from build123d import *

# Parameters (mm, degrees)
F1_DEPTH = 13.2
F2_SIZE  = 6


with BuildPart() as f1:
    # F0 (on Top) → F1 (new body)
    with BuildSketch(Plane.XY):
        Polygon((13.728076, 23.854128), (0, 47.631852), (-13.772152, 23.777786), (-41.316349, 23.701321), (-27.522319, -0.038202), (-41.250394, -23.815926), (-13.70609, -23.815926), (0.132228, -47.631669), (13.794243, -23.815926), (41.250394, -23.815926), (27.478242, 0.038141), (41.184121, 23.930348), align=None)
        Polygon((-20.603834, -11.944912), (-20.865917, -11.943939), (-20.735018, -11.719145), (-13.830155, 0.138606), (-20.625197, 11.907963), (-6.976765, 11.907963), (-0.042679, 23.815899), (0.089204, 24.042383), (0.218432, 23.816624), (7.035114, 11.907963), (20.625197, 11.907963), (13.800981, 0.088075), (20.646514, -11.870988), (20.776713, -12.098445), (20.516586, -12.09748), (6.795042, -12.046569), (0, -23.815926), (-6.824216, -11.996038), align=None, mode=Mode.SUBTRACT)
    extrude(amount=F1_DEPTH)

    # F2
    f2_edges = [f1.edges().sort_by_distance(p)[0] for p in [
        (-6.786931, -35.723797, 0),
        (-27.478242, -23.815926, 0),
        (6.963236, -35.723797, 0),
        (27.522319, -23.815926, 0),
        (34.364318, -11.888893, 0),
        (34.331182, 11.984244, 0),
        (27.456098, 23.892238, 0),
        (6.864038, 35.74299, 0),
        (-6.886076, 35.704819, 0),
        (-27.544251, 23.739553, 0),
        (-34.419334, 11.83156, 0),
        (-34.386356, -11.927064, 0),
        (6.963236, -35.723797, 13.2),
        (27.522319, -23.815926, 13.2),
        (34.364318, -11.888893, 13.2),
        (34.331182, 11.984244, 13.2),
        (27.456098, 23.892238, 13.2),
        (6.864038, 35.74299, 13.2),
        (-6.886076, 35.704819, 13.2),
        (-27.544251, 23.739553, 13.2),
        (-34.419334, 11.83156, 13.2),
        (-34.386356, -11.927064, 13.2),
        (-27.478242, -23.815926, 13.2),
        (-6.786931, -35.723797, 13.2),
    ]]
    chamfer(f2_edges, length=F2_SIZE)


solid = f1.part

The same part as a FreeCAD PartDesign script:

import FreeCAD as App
import Part
import Sketcher
Q = App.Units.Quantity


def edges_at(feature, points):
    """Names of the edges that pass closest to the given points."""
    edges = feature.Shape.Edges
    near = lambda p: min(range(len(edges)), key=lambda i: edges[i].distToShape(Part.Vertex(*p))[0])
    return sorted({f"Edge{near(p) + 1}" for p in points})


def add_polygon(sketch, points):
    """Adds a closed chain of lines whose ends are joined by coincident constraints."""
    first, n = sketch.GeometryCount, len(points)
    for a, b in zip(points, points[1:] + points[:1]):
        sketch.addGeometry(Part.LineSegment(App.Vector(*a, 0), App.Vector(*b, 0)), False)
    for i in range(n):
        sketch.addConstraint(Sketcher.Constraint("Coincident", first + i, 2, first + (i + 1) % n, 1))

doc = App.newDocument("Part")
body = doc.addObject("PartDesign::Body", "Body")

# Sketch on XY plane
sketch1 = body.newObject("Sketcher::SketchObject", "Sketch")
sketch1.AttachmentSupport = (doc.getObject("XY_Plane"), [""])
sketch1.MapMode = "FlatFace"
add_polygon(sketch1, [(13.728076, 23.854128), (0, 47.631852), (-13.772152, 23.777786), (-41.316349, 23.701321), (-27.522319, -0.038202), (-41.250394, -23.815926), (-13.70609, -23.815926), (0.132228, -47.631669), (13.794243, -23.815926), (41.250394, -23.815926), (27.478242, 0.038141), (41.184121, 23.930348)])  # lines 0-11
add_polygon(sketch1, [(-6.824216, -11.996038), (-20.603834, -11.944912), (-20.865917, -11.943939), (-20.735018, -11.719145), (-13.830155, 0.138606), (-20.625197, 11.907963), (-6.976765, 11.907963), (-0.042679, 23.815899), (0.089204, 24.042383), (0.218432, 23.816624), (7.035114, 11.907963), (20.625197, 11.907963), (13.800981, 0.088075), (20.646514, -11.870988), (20.776713, -12.098445), (20.516586, -12.09748), (6.795042, -12.046569), (0, -23.815926)])  # lines 12-29
sketch1.addConstraint(Sketcher.Constraint("Horizontal", 5))
sketch1.addConstraint(Sketcher.Constraint("Horizontal", 8))
sketch1.addConstraint(Sketcher.Constraint("Horizontal", 17))
sketch1.addConstraint(Sketcher.Constraint("Horizontal", 22))
sketch1.addConstraint(Sketcher.Constraint("PointOnObject", 0, 2, -2))
sketch1.addConstraint(Sketcher.Constraint("PointOnObject", 28, 2, -2))
sketch1.addConstraint(Sketcher.Constraint("DistanceX", 7, 2, 9, 2, Q("13.683999 mm")))
sketch1.addConstraint(Sketcher.Constraint("DistanceY", 7, 2, 23, 2, Q("23.904001 mm")))
sketch1.addConstraint(Sketcher.Constraint("DistanceX", 8, 1, 8, 2, Q("27.456151 mm")))
sketch1.addConstraint(Sketcher.Constraint("DistanceY", -1, 1, 18, 2, Q("23.815899 mm")))
sketch1.addConstraint(Sketcher.Constraint("DistanceX", 13, 2, 14, 2, Q("0.130899 mm")))
sketch1.addConstraint(Sketcher.Constraint("DistanceX", 3, 2, 14, 2, Q("6.787301 mm")))
sketch1.addConstraint(Sketcher.Constraint("DistanceX", 24, 2, 25, 2, Q("0.130199 mm")))
sketch1.addConstraint(Sketcher.Constraint("DistanceX", 27, 2, 7, 2, Q("6.999201 mm")))
sketch1.addConstraint(Sketcher.Constraint("Distance", 0, Q("27.456151 mm")))
sketch1.addConstraint(Sketcher.Constraint("Distance", 3, Q("27.456151 mm")))
sketch1.addConstraint(Sketcher.Constraint("Distance", 4, Q("27.456151 mm")))
sketch1.addConstraint(Sketcher.Constraint("Distance", 7, Q("27.456152 mm")))
sketch1.addConstraint(Sketcher.Constraint("Distance", 11, Q("27.456151 mm")))
sketch1.addConstraint(Sketcher.Constraint("Distance", 14, Q("0.260129 mm")))
sketch1.addConstraint(Sketcher.Constraint("Distance", 15, Q("13.72164 mm")))
sketch1.addConstraint(Sketcher.Constraint("Distance", 20, Q("0.260129 mm")))
sketch1.addConstraint(Sketcher.Constraint("Distance", 21, Q("13.721638 mm")))
sketch1.addConstraint(Sketcher.Constraint("Distance", 23, Q("13.648431 mm")))
sketch1.addConstraint(Sketcher.Constraint("Distance", 26, Q("0.260129 mm")))
sketch1.addConstraint(Sketcher.Constraint("Distance", 27, Q("13.721638 mm")))
sketch1.addConstraint(Sketcher.Constraint("Distance", 29, Q("13.648431 mm")))
sketch1.addConstraint(Sketcher.Constraint("DistanceX", 5, 1, 5, 2, Q("27.544304 mm")))
sketch1.addConstraint(Sketcher.Constraint("DistanceX", 17, 1, 17, 2, Q("13.648432 mm")))
sketch1.addConstraint(Sketcher.Constraint("DistanceX", 22, 1, 22, 2, Q("13.590083 mm")))
sketch1.addConstraint(Sketcher.Constraint("DistanceX", 2, 2, -1, 1, Q("41.316349 mm")))
sketch1.addConstraint(Sketcher.Constraint("DistanceY", -1, 1, 2, 2, Q("23.701321 mm")))
sketch1.addConstraint(Sketcher.Constraint("DistanceX", 3, 2, -1, 1, Q("27.522319 mm")))
sketch1.addConstraint(Sketcher.Constraint("DistanceX", 5, 2, -1, 1, Q("13.70609 mm")))
sketch1.addConstraint(Sketcher.Constraint("DistanceX", -1, 1, 6, 2, Q("0.132228 mm")))
sketch1.addConstraint(Sketcher.Constraint("DistanceY", 6, 2, -1, 1, Q("47.631669 mm")))
sketch1.addConstraint(Sketcher.Constraint("DistanceY", -1, 1, 9, 2, Q("0.038141 mm")))
sketch1.addConstraint(Sketcher.Constraint("DistanceX", -1, 1, 10, 2, Q("41.184121 mm")))
sketch1.addConstraint(Sketcher.Constraint("DistanceY", 13, 2, -1, 1, Q("11.943939 mm")))
sketch1.addConstraint(Sketcher.Constraint("DistanceX", 18, 2, -1, 1, Q("0.042679 mm")))
sketch1.addConstraint(Sketcher.Constraint("DistanceX", -1, 1, 20, 2, Q("0.218432 mm")))
sketch1.addConstraint(Sketcher.Constraint("DistanceX", -1, 1, 23, 2, Q("13.800981 mm")))
sketch1.addConstraint(Sketcher.Constraint("DistanceY", 26, 2, -1, 1, Q("12.09748 mm")))
sketch1.addConstraint(Sketcher.Constraint("DistanceX", -1, 1, 27, 2, Q("6.795042 mm")))
sketch1.addConstraint(Sketcher.Constraint("DistanceY", 27, 2, -1, 1, Q("12.046569 mm")))
sketch1.addConstraint(Sketcher.Constraint("DistanceY", 2, 2, 0, 2, Q("23.930531 mm")))
sketch1.addConstraint(Sketcher.Constraint("DistanceY", 4, 2, 1, 2, Q("47.593712 mm")))
sketch1.addConstraint(Sketcher.Constraint("DistanceX", 1, 2, 6, 2, Q("13.90438 mm")))
sketch1.addConstraint(Sketcher.Constraint("DistanceY", 1, 2, 10, 2, Q("0.152562 mm")))
sketch1.addConstraint(Sketcher.Constraint("DistanceY", 12, 2, 3, 2, Q("11.90671 mm")))
sketch1.addConstraint(Sketcher.Constraint("DistanceX", 4, 2, 12, 2, Q("20.64656 mm")))
sketch1.addConstraint(Sketcher.Constraint("DistanceY", 3, 2, 15, 2, Q("0.176808 mm")))
sketch1.addConstraint(Sketcher.Constraint("DistanceX", 3, 2, 16, 2, Q("6.897122 mm")))
sketch1.addConstraint(Sketcher.Constraint("DistanceY", 14, 2, 16, 2, Q("23.627108 mm")))
sketch1.addConstraint(Sketcher.Constraint("DistanceX", 19, 2, 11, 2, Q("13.638872 mm")))
sketch1.addConstraint(Sketcher.Constraint("DistanceY", 17, 2, 19, 2, Q("12.13442 mm")))
sketch1.addConstraint(Sketcher.Constraint("DistanceY", 24, 2, 9, 2, Q("11.909129 mm")))
sketch1.addConstraint(Sketcher.Constraint("DistanceY", 7, 2, 25, 2, Q("11.717481 mm")))
sketch1.addConstraint(Sketcher.Constraint("DistanceY", 27, 2, 29, 2, Q("0.050531 mm")))
sketch1.addConstraint(Sketcher.Constraint("DistanceY", 28, 2, 29, 2, Q("11.819888 mm")))
pad1 = body.newObject("PartDesign::Pad", "Pad")
pad1.Profile = sketch1
pad1.Length = 13.2
doc.recompute()

chamfer = body.newObject("PartDesign::Chamfer", "Chamfer")
chamfer.Base = (pad1, edges_at(pad1, [
    (-6.787, -35.724, 0),
    (-27.478, -23.816, 0),
    (6.963, -35.724, 0),
    (27.522, -23.816, 0),
    (34.364, -11.889, 0),
    (34.331, 11.984, 0),
    (27.456, 23.892, 0),
    (6.864, 35.743, 0),
    (-6.886, 35.705, 0),
    (-27.544, 23.74, 0),
    (-34.419, 11.832, 0),
    (-34.386, -11.927, 0),
    (6.963, -35.724, 13.2),
    (27.522, -23.816, 13.2),
    (34.364, -11.889, 13.2),
    (34.331, 11.984, 13.2),
    (27.456, 23.892, 13.2),
    (6.864, 35.743, 13.2),
    (-6.886, 35.705, 13.2),
    (-27.544, 23.74, 13.2),
    (-34.419, 11.832, 13.2),
    (-34.386, -11.927, 13.2),
    (-27.478, -23.816, 13.2),
    (-6.787, -35.724, 13.2),
]))
chamfer.Size = 6

doc.recompute()
